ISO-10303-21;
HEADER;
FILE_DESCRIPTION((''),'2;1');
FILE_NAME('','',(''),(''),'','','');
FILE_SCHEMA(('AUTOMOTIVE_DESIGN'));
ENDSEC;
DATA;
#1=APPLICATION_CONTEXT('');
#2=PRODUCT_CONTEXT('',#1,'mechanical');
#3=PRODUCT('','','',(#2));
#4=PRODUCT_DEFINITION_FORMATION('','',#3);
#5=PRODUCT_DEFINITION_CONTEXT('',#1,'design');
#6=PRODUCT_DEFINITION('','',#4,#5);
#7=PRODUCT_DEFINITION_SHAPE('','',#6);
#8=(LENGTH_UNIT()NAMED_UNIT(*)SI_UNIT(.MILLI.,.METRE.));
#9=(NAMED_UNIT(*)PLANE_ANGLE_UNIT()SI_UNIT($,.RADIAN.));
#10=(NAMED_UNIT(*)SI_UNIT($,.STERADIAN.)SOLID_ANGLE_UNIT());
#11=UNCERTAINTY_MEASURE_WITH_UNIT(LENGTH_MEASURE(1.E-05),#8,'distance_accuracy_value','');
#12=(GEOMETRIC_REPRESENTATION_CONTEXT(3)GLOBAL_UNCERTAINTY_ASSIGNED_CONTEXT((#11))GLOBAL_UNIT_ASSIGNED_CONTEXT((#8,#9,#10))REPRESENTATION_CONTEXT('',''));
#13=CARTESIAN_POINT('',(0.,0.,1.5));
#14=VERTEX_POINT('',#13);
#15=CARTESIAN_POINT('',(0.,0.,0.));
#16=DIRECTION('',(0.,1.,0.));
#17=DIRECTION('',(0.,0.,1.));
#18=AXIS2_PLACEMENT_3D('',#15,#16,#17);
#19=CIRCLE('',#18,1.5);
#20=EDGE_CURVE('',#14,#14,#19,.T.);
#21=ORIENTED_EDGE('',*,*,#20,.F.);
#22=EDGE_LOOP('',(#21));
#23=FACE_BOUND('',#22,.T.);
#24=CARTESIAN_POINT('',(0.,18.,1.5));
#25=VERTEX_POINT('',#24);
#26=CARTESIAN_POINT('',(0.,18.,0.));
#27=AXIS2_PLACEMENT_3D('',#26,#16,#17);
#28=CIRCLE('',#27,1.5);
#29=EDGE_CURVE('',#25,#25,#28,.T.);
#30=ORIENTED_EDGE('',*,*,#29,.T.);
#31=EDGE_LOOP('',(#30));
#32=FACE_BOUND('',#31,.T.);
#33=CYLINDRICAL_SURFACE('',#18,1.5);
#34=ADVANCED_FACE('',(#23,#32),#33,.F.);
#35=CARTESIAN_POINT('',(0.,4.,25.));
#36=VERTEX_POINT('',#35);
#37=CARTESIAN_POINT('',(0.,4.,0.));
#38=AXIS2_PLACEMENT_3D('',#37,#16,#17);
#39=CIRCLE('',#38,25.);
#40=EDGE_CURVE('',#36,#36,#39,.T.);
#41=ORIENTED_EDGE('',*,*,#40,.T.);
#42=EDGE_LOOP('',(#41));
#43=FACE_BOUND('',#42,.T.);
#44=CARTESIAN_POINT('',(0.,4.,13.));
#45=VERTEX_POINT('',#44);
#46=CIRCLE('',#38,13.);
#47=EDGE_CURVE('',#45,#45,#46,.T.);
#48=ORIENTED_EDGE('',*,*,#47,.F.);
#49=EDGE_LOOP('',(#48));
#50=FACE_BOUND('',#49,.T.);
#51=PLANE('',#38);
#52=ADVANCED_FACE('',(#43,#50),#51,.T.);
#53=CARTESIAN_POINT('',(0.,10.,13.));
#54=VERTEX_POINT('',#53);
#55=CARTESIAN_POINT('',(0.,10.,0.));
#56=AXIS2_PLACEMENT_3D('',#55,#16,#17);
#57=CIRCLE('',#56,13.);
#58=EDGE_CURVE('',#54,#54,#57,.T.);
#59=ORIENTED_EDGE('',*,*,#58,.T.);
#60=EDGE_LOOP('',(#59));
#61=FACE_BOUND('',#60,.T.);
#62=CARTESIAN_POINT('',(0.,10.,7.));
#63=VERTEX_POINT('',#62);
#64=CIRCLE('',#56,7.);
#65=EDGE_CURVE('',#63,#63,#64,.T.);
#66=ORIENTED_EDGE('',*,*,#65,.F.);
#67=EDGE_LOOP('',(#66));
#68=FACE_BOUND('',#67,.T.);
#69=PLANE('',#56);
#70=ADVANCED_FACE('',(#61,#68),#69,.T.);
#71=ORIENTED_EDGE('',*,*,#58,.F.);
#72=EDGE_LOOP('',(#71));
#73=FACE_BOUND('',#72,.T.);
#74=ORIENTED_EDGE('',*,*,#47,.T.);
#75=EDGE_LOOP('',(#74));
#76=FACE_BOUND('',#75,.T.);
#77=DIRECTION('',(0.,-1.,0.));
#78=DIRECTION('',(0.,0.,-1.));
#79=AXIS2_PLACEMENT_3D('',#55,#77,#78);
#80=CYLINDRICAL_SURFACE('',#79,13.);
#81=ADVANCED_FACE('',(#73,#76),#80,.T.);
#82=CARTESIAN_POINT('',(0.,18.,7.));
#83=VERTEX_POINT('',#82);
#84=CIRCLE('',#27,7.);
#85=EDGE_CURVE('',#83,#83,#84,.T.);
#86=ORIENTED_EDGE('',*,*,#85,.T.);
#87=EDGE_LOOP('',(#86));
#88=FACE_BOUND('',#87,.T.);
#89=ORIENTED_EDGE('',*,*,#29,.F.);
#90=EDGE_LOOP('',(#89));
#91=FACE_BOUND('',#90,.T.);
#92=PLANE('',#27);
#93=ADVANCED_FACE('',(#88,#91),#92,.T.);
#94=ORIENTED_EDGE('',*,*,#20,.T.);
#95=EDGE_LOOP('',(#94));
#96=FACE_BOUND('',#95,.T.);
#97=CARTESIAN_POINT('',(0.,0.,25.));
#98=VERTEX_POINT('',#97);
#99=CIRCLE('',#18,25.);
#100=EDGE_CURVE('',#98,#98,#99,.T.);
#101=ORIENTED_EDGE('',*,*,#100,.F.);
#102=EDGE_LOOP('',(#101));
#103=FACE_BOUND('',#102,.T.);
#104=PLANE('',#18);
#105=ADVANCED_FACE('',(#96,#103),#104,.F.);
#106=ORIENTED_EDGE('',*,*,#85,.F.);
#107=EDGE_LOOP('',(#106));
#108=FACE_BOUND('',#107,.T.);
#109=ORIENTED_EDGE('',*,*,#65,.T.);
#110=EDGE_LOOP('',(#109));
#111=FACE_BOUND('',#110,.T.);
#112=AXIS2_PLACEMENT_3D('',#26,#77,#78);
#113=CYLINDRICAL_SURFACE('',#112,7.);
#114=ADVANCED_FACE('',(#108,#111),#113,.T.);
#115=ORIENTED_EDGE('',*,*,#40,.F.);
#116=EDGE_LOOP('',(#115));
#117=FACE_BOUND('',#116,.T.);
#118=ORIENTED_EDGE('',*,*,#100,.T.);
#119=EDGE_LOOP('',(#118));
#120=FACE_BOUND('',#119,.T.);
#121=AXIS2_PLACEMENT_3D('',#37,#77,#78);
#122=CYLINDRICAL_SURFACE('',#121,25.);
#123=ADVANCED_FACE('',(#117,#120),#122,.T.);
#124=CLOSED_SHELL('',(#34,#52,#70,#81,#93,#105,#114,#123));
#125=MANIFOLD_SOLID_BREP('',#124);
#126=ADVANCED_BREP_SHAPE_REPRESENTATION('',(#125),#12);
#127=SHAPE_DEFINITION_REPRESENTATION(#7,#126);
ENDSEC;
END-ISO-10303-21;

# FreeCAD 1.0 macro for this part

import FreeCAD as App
import Part
import Sketcher
from FreeCAD import Vector

doc = App.newDocument("Part")
params = doc.addObject("Spreadsheet::Sheet", "Params")
for row, (alias, value) in enumerate([
    ("sketch1_diameter", "50 mm"),
    ("pad1_length", "4 mm"),
    ("sketch2_diameter", "26 mm"),
    ("pad2_length", "6 mm"),
    ("sketch3_diameter", "14 mm"),
    ("pad3_length", "8 mm"),
    ("sketch4_diameter", "3 mm"),
], start=1):
    params.set(f"A{row}", alias)
    params.set(f"B{row}", "=" + value)
    params.setAlias(f"B{row}", alias)

body = doc.addObject("PartDesign::Body", "Body")

# Sketch on XZ plane
sketch1 = doc.addObject("Sketcher::SketchObject", "Sketch")
body.addObject(sketch1)
sketch1.AttachmentSupport = (doc.XZ_Plane, [""])
sketch1.MapMode = "FlatFace"
sketch1.addGeometry(Part.Circle(Vector(0, 0, 0), Vector(0, 0, 1), 25), False)
sketch1.addConstraint([
    Sketcher.Constraint("Coincident", 0, 3, -1, 1),
    Sketcher.Constraint("Diameter", 0, 50.0),
])
sketch1.setExpression("Constraints[1]", "Params.sketch1_diameter")
pad1 = doc.addObject("PartDesign::Pad", "Pad")
body.addObject(pad1)
pad1.Profile = sketch1
pad1.setExpression("Length", "Params.pad1_length")
pad1.Reversed = True

# Sketch on XZ plane
sketch2 = doc.addObject("Sketcher::SketchObject", "Sketch001")
body.addObject(sketch2)
sketch2.AttachmentSupport = (doc.XZ_Plane, [""])
sketch2.MapMode = "FlatFace"
sketch2.AttachmentOffset = App.Placement(Vector(0, 0, -4), App.Rotation())
sketch2.addGeometry(Part.Circle(Vector(0, 0, 0), Vector(0, 0, 1), 13), False)
sketch2.addConstraint([
    Sketcher.Constraint("Coincident", 0, 3, -1, 1),
    Sketcher.Constraint("Diameter", 0, 26.0),
])
sketch2.setExpression("Constraints[1]", "Params.sketch2_diameter")
pad2 = doc.addObject("PartDesign::Pad", "Pad001")
body.addObject(pad2)
pad2.Profile = sketch2
pad2.setExpression("Length", "Params.pad2_length")
pad2.Reversed = True

# Sketch on XZ plane
sketch3 = doc.addObject("Sketcher::SketchObject", "Sketch002")
body.addObject(sketch3)
sketch3.AttachmentSupport = (doc.XZ_Plane, [""])
sketch3.MapMode = "FlatFace"
sketch3.AttachmentOffset = App.Placement(Vector(0, 0, -10), App.Rotation())
sketch3.addGeometry(Part.Circle(Vector(0, 0, 0), Vector(0, 0, 1), 7), False)
sketch3.addConstraint([
    Sketcher.Constraint("Coincident", 0, 3, -1, 1),
    Sketcher.Constraint("Diameter", 0, 14.0),
])
sketch3.setExpression("Constraints[1]", "Params.sketch3_diameter")
pad3 = doc.addObject("PartDesign::Pad", "Pad002")
body.addObject(pad3)
pad3.Profile = sketch3
pad3.setExpression("Length", "Params.pad3_length")
pad3.Reversed = True

# Sketch on XZ plane
sketch4 = doc.addObject("Sketcher::SketchObject", "Sketch003")
body.addObject(sketch4)
sketch4.AttachmentSupport = (doc.XZ_Plane, [""])
sketch4.MapMode = "FlatFace"
sketch4.AttachmentOffset = App.Placement(Vector(0, 0, -18), App.Rotation())
sketch4.addGeometry(Part.Circle(Vector(0, 0, 0), Vector(0, 0, 1), 1.5), False)
sketch4.addConstraint([
    Sketcher.Constraint("Coincident", 0, 3, -1, 1),
    Sketcher.Constraint("Diameter", 0, 3.0),
])
sketch4.setExpression("Constraints[1]", "Params.sketch4_diameter")
pocket1 = doc.addObject("PartDesign::Pocket", "Pocket")
body.addObject(pocket1)
pocket1.Profile = sketch4
pocket1.Type = "ThroughAll"
pocket1.Reversed = True

doc.recompute()
